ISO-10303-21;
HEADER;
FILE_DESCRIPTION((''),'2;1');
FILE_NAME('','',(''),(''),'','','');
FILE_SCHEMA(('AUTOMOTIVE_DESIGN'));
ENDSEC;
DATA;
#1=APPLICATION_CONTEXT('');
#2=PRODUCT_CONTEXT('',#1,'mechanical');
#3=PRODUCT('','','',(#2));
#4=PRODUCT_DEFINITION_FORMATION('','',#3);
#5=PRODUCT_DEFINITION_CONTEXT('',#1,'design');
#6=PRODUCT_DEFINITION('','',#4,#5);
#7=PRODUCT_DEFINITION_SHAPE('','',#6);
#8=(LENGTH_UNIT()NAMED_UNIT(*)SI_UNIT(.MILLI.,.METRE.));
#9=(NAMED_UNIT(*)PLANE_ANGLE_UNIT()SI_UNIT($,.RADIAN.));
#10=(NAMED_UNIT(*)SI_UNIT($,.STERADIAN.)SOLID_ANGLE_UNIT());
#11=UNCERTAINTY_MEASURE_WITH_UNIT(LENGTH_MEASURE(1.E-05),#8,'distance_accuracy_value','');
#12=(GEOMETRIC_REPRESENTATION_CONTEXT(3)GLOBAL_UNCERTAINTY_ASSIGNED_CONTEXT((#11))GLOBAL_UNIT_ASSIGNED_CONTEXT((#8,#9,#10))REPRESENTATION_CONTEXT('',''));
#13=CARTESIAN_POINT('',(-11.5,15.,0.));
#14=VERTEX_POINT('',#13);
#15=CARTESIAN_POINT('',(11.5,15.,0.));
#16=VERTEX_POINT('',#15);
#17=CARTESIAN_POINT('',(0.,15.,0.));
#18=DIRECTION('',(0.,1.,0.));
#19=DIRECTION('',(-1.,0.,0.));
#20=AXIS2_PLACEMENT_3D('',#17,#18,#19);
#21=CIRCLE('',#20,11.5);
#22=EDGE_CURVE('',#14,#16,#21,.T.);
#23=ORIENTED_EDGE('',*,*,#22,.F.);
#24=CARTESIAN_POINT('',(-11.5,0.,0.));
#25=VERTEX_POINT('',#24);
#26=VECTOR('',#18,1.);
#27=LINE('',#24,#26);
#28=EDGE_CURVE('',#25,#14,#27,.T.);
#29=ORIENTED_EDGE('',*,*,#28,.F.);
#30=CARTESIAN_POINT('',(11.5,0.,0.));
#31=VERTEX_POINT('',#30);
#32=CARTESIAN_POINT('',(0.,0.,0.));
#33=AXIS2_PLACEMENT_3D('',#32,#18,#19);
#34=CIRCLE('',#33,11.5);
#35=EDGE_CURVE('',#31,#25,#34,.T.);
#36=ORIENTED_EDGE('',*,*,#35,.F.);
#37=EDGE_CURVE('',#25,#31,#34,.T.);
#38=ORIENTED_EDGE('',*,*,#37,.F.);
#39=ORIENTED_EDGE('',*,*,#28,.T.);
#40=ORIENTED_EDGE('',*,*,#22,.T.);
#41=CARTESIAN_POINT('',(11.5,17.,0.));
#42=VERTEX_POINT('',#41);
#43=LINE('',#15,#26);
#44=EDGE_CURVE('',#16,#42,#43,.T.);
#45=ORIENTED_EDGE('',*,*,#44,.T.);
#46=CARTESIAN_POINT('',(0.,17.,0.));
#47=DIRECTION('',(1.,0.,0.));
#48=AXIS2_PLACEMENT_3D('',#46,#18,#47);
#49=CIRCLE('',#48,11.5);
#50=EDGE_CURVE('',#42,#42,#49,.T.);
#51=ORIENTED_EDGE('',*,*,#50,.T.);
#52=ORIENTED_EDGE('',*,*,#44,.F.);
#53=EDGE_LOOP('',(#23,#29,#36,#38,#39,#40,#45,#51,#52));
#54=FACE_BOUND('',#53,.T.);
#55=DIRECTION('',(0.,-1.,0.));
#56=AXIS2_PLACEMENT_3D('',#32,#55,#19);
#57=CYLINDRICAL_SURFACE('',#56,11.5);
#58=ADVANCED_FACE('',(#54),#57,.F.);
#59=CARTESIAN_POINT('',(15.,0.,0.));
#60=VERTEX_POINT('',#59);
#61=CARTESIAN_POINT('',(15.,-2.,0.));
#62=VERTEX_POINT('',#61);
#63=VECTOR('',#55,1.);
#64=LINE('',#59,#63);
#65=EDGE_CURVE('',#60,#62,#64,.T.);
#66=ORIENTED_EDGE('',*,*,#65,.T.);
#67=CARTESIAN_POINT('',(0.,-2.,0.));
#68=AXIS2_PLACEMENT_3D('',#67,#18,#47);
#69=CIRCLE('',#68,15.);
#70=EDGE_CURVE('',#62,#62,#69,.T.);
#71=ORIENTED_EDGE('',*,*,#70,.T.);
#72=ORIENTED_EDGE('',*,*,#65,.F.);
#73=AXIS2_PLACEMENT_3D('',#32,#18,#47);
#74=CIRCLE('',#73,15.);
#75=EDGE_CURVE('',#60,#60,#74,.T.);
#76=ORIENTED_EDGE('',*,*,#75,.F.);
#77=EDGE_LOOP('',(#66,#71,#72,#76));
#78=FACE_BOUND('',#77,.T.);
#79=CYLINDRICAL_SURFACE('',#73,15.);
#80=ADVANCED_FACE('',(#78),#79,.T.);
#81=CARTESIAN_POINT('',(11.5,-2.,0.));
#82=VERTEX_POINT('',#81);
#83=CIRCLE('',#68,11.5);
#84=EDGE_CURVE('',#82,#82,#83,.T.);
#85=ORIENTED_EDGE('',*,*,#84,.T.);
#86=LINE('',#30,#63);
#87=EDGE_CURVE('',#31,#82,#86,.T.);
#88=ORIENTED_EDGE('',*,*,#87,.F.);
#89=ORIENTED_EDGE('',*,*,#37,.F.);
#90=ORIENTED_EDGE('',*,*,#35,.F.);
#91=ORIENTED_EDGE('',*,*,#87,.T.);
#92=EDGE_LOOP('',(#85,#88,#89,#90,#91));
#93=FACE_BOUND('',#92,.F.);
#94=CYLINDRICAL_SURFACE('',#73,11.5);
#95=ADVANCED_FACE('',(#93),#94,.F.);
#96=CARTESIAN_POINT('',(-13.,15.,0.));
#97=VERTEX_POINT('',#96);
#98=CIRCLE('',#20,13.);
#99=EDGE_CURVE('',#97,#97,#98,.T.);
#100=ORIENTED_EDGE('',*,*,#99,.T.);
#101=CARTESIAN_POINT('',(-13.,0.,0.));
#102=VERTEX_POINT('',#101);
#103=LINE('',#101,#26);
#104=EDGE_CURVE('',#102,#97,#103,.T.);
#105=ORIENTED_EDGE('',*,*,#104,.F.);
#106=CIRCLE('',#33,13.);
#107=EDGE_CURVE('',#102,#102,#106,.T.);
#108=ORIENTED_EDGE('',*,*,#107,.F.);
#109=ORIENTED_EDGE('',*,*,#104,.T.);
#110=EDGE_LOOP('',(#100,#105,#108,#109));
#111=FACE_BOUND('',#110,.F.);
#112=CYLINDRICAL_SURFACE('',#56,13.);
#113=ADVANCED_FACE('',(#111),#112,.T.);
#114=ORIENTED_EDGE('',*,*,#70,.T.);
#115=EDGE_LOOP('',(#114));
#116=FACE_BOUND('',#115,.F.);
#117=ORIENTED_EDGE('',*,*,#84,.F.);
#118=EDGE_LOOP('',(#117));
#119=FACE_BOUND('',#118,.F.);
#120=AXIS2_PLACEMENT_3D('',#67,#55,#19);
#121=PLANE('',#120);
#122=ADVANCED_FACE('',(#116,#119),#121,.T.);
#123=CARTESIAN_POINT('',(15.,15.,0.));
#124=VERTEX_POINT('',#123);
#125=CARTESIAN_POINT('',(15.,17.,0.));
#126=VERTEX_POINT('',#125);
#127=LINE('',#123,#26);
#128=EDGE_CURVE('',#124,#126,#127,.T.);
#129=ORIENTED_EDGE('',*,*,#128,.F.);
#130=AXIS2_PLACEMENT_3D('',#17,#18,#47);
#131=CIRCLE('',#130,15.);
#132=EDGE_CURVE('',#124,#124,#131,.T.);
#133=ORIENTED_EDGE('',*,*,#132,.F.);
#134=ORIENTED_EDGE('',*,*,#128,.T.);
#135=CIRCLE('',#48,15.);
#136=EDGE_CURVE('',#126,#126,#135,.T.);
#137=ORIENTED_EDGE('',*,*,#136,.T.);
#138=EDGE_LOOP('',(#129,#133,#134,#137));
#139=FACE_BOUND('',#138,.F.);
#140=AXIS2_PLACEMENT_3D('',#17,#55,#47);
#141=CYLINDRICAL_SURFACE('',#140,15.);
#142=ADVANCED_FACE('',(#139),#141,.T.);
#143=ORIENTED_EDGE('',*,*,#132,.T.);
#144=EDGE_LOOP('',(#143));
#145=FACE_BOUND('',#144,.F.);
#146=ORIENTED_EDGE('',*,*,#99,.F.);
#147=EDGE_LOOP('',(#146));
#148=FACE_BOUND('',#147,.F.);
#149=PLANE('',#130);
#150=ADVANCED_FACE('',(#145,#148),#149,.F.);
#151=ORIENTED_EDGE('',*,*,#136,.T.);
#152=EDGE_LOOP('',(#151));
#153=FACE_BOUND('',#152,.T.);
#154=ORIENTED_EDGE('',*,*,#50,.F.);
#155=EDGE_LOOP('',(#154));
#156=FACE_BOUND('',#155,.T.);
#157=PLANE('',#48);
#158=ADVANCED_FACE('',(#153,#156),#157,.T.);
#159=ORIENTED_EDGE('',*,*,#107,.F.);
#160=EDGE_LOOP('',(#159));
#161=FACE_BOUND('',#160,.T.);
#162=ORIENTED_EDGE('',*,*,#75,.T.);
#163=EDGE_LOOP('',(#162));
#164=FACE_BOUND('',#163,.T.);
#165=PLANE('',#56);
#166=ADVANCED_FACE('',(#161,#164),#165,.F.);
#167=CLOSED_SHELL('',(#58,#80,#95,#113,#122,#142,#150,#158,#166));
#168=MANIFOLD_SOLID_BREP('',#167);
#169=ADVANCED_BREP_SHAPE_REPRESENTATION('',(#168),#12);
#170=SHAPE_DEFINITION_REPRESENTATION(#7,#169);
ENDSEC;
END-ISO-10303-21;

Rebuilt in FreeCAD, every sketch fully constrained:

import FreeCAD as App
import Part
import Sketcher
Q = App.Units.Quantity

doc = App.newDocument("Part")
body = doc.addObject("PartDesign::Body", "Body")

sketch1 = body.newObject("Sketcher::SketchObject", "Sketch")
sketch1.AttachmentSupport = (doc.getObject("XZ_Plane"), [""])
sketch1.MapMode = "FlatFace"
sketch1.addGeometry(Part.Circle(App.Vector(0, 0, 0), App.Vector(0, 0, 1), 13), False)
sketch1.addGeometry(Part.Circle(App.Vector(0, 0, 0), App.Vector(0, 0, 1), 12), False)
sketch1.addConstraint(Sketcher.Constraint("Coincident", 0, 3, -1, 1))
sketch1.addConstraint(Sketcher.Constraint("Coincident", 1, 3, -1, 1))
sketch1.addConstraint(Sketcher.Constraint("Diameter", 0, Q("26 mm")))
sketch1.addConstraint(Sketcher.Constraint("Diameter", 1, Q("23 mm")))
pad1 = body.newObject("PartDesign::Pad", "Pad")
pad1.Profile = sketch1
pad1.Length = 15
pad1.Reversed = True

sketch2 = body.newObject("Sketcher::SketchObject", "Sketch001")
sketch2.AttachmentSupport = (doc.getObject("XZ_Plane"), [""])
sketch2.MapMode = "FlatFace"
sketch2.AttachmentOffset = App.Placement(App.Vector(0, 0, -15), App.Rotation())
sketch2.addGeometry(Part.Circle(App.Vector(0, 0, 0), App.Vector(0, 0, 1), 15), False)
sketch2.addGeometry(Part.Circle(App.Vector(0, 0, 0), App.Vector(0, 0, 1), 12), False)
sketch2.addConstraint(Sketcher.Constraint("Coincident", 0, 3, -1, 1))
sketch2.addConstraint(Sketcher.Constraint("Coincident", 1, 3, -1, 1))
sketch2.addConstraint(Sketcher.Constraint("Diameter", 0, Q("30 mm")))
sketch2.addConstraint(Sketcher.Constraint("Diameter", 1, Q("23 mm")))
pad2 = body.newObject("PartDesign::Pad", "Pad001")
pad2.Profile = sketch2
pad2.Length = 2
pad2.Reversed = True
doc.recompute()

datumplane = body.newObject("PartDesign::Plane", "DatumPlane")
datumplane.AttachmentSupport = (doc.getObject("XZ_Plane"), [""])
datumplane.MapMode = "FlatFace"
datumplane.AttachmentOffset = App.Placement(App.Vector(0, 0, -7.5), App.Rotation())
mirrored = body.newObject("PartDesign::Mirrored", "Mirrored")
mirrored.Originals = [pad2]
mirrored.MirrorPlane = (datumplane, [""])
body.Tip = mirrored

doc.recompute()
